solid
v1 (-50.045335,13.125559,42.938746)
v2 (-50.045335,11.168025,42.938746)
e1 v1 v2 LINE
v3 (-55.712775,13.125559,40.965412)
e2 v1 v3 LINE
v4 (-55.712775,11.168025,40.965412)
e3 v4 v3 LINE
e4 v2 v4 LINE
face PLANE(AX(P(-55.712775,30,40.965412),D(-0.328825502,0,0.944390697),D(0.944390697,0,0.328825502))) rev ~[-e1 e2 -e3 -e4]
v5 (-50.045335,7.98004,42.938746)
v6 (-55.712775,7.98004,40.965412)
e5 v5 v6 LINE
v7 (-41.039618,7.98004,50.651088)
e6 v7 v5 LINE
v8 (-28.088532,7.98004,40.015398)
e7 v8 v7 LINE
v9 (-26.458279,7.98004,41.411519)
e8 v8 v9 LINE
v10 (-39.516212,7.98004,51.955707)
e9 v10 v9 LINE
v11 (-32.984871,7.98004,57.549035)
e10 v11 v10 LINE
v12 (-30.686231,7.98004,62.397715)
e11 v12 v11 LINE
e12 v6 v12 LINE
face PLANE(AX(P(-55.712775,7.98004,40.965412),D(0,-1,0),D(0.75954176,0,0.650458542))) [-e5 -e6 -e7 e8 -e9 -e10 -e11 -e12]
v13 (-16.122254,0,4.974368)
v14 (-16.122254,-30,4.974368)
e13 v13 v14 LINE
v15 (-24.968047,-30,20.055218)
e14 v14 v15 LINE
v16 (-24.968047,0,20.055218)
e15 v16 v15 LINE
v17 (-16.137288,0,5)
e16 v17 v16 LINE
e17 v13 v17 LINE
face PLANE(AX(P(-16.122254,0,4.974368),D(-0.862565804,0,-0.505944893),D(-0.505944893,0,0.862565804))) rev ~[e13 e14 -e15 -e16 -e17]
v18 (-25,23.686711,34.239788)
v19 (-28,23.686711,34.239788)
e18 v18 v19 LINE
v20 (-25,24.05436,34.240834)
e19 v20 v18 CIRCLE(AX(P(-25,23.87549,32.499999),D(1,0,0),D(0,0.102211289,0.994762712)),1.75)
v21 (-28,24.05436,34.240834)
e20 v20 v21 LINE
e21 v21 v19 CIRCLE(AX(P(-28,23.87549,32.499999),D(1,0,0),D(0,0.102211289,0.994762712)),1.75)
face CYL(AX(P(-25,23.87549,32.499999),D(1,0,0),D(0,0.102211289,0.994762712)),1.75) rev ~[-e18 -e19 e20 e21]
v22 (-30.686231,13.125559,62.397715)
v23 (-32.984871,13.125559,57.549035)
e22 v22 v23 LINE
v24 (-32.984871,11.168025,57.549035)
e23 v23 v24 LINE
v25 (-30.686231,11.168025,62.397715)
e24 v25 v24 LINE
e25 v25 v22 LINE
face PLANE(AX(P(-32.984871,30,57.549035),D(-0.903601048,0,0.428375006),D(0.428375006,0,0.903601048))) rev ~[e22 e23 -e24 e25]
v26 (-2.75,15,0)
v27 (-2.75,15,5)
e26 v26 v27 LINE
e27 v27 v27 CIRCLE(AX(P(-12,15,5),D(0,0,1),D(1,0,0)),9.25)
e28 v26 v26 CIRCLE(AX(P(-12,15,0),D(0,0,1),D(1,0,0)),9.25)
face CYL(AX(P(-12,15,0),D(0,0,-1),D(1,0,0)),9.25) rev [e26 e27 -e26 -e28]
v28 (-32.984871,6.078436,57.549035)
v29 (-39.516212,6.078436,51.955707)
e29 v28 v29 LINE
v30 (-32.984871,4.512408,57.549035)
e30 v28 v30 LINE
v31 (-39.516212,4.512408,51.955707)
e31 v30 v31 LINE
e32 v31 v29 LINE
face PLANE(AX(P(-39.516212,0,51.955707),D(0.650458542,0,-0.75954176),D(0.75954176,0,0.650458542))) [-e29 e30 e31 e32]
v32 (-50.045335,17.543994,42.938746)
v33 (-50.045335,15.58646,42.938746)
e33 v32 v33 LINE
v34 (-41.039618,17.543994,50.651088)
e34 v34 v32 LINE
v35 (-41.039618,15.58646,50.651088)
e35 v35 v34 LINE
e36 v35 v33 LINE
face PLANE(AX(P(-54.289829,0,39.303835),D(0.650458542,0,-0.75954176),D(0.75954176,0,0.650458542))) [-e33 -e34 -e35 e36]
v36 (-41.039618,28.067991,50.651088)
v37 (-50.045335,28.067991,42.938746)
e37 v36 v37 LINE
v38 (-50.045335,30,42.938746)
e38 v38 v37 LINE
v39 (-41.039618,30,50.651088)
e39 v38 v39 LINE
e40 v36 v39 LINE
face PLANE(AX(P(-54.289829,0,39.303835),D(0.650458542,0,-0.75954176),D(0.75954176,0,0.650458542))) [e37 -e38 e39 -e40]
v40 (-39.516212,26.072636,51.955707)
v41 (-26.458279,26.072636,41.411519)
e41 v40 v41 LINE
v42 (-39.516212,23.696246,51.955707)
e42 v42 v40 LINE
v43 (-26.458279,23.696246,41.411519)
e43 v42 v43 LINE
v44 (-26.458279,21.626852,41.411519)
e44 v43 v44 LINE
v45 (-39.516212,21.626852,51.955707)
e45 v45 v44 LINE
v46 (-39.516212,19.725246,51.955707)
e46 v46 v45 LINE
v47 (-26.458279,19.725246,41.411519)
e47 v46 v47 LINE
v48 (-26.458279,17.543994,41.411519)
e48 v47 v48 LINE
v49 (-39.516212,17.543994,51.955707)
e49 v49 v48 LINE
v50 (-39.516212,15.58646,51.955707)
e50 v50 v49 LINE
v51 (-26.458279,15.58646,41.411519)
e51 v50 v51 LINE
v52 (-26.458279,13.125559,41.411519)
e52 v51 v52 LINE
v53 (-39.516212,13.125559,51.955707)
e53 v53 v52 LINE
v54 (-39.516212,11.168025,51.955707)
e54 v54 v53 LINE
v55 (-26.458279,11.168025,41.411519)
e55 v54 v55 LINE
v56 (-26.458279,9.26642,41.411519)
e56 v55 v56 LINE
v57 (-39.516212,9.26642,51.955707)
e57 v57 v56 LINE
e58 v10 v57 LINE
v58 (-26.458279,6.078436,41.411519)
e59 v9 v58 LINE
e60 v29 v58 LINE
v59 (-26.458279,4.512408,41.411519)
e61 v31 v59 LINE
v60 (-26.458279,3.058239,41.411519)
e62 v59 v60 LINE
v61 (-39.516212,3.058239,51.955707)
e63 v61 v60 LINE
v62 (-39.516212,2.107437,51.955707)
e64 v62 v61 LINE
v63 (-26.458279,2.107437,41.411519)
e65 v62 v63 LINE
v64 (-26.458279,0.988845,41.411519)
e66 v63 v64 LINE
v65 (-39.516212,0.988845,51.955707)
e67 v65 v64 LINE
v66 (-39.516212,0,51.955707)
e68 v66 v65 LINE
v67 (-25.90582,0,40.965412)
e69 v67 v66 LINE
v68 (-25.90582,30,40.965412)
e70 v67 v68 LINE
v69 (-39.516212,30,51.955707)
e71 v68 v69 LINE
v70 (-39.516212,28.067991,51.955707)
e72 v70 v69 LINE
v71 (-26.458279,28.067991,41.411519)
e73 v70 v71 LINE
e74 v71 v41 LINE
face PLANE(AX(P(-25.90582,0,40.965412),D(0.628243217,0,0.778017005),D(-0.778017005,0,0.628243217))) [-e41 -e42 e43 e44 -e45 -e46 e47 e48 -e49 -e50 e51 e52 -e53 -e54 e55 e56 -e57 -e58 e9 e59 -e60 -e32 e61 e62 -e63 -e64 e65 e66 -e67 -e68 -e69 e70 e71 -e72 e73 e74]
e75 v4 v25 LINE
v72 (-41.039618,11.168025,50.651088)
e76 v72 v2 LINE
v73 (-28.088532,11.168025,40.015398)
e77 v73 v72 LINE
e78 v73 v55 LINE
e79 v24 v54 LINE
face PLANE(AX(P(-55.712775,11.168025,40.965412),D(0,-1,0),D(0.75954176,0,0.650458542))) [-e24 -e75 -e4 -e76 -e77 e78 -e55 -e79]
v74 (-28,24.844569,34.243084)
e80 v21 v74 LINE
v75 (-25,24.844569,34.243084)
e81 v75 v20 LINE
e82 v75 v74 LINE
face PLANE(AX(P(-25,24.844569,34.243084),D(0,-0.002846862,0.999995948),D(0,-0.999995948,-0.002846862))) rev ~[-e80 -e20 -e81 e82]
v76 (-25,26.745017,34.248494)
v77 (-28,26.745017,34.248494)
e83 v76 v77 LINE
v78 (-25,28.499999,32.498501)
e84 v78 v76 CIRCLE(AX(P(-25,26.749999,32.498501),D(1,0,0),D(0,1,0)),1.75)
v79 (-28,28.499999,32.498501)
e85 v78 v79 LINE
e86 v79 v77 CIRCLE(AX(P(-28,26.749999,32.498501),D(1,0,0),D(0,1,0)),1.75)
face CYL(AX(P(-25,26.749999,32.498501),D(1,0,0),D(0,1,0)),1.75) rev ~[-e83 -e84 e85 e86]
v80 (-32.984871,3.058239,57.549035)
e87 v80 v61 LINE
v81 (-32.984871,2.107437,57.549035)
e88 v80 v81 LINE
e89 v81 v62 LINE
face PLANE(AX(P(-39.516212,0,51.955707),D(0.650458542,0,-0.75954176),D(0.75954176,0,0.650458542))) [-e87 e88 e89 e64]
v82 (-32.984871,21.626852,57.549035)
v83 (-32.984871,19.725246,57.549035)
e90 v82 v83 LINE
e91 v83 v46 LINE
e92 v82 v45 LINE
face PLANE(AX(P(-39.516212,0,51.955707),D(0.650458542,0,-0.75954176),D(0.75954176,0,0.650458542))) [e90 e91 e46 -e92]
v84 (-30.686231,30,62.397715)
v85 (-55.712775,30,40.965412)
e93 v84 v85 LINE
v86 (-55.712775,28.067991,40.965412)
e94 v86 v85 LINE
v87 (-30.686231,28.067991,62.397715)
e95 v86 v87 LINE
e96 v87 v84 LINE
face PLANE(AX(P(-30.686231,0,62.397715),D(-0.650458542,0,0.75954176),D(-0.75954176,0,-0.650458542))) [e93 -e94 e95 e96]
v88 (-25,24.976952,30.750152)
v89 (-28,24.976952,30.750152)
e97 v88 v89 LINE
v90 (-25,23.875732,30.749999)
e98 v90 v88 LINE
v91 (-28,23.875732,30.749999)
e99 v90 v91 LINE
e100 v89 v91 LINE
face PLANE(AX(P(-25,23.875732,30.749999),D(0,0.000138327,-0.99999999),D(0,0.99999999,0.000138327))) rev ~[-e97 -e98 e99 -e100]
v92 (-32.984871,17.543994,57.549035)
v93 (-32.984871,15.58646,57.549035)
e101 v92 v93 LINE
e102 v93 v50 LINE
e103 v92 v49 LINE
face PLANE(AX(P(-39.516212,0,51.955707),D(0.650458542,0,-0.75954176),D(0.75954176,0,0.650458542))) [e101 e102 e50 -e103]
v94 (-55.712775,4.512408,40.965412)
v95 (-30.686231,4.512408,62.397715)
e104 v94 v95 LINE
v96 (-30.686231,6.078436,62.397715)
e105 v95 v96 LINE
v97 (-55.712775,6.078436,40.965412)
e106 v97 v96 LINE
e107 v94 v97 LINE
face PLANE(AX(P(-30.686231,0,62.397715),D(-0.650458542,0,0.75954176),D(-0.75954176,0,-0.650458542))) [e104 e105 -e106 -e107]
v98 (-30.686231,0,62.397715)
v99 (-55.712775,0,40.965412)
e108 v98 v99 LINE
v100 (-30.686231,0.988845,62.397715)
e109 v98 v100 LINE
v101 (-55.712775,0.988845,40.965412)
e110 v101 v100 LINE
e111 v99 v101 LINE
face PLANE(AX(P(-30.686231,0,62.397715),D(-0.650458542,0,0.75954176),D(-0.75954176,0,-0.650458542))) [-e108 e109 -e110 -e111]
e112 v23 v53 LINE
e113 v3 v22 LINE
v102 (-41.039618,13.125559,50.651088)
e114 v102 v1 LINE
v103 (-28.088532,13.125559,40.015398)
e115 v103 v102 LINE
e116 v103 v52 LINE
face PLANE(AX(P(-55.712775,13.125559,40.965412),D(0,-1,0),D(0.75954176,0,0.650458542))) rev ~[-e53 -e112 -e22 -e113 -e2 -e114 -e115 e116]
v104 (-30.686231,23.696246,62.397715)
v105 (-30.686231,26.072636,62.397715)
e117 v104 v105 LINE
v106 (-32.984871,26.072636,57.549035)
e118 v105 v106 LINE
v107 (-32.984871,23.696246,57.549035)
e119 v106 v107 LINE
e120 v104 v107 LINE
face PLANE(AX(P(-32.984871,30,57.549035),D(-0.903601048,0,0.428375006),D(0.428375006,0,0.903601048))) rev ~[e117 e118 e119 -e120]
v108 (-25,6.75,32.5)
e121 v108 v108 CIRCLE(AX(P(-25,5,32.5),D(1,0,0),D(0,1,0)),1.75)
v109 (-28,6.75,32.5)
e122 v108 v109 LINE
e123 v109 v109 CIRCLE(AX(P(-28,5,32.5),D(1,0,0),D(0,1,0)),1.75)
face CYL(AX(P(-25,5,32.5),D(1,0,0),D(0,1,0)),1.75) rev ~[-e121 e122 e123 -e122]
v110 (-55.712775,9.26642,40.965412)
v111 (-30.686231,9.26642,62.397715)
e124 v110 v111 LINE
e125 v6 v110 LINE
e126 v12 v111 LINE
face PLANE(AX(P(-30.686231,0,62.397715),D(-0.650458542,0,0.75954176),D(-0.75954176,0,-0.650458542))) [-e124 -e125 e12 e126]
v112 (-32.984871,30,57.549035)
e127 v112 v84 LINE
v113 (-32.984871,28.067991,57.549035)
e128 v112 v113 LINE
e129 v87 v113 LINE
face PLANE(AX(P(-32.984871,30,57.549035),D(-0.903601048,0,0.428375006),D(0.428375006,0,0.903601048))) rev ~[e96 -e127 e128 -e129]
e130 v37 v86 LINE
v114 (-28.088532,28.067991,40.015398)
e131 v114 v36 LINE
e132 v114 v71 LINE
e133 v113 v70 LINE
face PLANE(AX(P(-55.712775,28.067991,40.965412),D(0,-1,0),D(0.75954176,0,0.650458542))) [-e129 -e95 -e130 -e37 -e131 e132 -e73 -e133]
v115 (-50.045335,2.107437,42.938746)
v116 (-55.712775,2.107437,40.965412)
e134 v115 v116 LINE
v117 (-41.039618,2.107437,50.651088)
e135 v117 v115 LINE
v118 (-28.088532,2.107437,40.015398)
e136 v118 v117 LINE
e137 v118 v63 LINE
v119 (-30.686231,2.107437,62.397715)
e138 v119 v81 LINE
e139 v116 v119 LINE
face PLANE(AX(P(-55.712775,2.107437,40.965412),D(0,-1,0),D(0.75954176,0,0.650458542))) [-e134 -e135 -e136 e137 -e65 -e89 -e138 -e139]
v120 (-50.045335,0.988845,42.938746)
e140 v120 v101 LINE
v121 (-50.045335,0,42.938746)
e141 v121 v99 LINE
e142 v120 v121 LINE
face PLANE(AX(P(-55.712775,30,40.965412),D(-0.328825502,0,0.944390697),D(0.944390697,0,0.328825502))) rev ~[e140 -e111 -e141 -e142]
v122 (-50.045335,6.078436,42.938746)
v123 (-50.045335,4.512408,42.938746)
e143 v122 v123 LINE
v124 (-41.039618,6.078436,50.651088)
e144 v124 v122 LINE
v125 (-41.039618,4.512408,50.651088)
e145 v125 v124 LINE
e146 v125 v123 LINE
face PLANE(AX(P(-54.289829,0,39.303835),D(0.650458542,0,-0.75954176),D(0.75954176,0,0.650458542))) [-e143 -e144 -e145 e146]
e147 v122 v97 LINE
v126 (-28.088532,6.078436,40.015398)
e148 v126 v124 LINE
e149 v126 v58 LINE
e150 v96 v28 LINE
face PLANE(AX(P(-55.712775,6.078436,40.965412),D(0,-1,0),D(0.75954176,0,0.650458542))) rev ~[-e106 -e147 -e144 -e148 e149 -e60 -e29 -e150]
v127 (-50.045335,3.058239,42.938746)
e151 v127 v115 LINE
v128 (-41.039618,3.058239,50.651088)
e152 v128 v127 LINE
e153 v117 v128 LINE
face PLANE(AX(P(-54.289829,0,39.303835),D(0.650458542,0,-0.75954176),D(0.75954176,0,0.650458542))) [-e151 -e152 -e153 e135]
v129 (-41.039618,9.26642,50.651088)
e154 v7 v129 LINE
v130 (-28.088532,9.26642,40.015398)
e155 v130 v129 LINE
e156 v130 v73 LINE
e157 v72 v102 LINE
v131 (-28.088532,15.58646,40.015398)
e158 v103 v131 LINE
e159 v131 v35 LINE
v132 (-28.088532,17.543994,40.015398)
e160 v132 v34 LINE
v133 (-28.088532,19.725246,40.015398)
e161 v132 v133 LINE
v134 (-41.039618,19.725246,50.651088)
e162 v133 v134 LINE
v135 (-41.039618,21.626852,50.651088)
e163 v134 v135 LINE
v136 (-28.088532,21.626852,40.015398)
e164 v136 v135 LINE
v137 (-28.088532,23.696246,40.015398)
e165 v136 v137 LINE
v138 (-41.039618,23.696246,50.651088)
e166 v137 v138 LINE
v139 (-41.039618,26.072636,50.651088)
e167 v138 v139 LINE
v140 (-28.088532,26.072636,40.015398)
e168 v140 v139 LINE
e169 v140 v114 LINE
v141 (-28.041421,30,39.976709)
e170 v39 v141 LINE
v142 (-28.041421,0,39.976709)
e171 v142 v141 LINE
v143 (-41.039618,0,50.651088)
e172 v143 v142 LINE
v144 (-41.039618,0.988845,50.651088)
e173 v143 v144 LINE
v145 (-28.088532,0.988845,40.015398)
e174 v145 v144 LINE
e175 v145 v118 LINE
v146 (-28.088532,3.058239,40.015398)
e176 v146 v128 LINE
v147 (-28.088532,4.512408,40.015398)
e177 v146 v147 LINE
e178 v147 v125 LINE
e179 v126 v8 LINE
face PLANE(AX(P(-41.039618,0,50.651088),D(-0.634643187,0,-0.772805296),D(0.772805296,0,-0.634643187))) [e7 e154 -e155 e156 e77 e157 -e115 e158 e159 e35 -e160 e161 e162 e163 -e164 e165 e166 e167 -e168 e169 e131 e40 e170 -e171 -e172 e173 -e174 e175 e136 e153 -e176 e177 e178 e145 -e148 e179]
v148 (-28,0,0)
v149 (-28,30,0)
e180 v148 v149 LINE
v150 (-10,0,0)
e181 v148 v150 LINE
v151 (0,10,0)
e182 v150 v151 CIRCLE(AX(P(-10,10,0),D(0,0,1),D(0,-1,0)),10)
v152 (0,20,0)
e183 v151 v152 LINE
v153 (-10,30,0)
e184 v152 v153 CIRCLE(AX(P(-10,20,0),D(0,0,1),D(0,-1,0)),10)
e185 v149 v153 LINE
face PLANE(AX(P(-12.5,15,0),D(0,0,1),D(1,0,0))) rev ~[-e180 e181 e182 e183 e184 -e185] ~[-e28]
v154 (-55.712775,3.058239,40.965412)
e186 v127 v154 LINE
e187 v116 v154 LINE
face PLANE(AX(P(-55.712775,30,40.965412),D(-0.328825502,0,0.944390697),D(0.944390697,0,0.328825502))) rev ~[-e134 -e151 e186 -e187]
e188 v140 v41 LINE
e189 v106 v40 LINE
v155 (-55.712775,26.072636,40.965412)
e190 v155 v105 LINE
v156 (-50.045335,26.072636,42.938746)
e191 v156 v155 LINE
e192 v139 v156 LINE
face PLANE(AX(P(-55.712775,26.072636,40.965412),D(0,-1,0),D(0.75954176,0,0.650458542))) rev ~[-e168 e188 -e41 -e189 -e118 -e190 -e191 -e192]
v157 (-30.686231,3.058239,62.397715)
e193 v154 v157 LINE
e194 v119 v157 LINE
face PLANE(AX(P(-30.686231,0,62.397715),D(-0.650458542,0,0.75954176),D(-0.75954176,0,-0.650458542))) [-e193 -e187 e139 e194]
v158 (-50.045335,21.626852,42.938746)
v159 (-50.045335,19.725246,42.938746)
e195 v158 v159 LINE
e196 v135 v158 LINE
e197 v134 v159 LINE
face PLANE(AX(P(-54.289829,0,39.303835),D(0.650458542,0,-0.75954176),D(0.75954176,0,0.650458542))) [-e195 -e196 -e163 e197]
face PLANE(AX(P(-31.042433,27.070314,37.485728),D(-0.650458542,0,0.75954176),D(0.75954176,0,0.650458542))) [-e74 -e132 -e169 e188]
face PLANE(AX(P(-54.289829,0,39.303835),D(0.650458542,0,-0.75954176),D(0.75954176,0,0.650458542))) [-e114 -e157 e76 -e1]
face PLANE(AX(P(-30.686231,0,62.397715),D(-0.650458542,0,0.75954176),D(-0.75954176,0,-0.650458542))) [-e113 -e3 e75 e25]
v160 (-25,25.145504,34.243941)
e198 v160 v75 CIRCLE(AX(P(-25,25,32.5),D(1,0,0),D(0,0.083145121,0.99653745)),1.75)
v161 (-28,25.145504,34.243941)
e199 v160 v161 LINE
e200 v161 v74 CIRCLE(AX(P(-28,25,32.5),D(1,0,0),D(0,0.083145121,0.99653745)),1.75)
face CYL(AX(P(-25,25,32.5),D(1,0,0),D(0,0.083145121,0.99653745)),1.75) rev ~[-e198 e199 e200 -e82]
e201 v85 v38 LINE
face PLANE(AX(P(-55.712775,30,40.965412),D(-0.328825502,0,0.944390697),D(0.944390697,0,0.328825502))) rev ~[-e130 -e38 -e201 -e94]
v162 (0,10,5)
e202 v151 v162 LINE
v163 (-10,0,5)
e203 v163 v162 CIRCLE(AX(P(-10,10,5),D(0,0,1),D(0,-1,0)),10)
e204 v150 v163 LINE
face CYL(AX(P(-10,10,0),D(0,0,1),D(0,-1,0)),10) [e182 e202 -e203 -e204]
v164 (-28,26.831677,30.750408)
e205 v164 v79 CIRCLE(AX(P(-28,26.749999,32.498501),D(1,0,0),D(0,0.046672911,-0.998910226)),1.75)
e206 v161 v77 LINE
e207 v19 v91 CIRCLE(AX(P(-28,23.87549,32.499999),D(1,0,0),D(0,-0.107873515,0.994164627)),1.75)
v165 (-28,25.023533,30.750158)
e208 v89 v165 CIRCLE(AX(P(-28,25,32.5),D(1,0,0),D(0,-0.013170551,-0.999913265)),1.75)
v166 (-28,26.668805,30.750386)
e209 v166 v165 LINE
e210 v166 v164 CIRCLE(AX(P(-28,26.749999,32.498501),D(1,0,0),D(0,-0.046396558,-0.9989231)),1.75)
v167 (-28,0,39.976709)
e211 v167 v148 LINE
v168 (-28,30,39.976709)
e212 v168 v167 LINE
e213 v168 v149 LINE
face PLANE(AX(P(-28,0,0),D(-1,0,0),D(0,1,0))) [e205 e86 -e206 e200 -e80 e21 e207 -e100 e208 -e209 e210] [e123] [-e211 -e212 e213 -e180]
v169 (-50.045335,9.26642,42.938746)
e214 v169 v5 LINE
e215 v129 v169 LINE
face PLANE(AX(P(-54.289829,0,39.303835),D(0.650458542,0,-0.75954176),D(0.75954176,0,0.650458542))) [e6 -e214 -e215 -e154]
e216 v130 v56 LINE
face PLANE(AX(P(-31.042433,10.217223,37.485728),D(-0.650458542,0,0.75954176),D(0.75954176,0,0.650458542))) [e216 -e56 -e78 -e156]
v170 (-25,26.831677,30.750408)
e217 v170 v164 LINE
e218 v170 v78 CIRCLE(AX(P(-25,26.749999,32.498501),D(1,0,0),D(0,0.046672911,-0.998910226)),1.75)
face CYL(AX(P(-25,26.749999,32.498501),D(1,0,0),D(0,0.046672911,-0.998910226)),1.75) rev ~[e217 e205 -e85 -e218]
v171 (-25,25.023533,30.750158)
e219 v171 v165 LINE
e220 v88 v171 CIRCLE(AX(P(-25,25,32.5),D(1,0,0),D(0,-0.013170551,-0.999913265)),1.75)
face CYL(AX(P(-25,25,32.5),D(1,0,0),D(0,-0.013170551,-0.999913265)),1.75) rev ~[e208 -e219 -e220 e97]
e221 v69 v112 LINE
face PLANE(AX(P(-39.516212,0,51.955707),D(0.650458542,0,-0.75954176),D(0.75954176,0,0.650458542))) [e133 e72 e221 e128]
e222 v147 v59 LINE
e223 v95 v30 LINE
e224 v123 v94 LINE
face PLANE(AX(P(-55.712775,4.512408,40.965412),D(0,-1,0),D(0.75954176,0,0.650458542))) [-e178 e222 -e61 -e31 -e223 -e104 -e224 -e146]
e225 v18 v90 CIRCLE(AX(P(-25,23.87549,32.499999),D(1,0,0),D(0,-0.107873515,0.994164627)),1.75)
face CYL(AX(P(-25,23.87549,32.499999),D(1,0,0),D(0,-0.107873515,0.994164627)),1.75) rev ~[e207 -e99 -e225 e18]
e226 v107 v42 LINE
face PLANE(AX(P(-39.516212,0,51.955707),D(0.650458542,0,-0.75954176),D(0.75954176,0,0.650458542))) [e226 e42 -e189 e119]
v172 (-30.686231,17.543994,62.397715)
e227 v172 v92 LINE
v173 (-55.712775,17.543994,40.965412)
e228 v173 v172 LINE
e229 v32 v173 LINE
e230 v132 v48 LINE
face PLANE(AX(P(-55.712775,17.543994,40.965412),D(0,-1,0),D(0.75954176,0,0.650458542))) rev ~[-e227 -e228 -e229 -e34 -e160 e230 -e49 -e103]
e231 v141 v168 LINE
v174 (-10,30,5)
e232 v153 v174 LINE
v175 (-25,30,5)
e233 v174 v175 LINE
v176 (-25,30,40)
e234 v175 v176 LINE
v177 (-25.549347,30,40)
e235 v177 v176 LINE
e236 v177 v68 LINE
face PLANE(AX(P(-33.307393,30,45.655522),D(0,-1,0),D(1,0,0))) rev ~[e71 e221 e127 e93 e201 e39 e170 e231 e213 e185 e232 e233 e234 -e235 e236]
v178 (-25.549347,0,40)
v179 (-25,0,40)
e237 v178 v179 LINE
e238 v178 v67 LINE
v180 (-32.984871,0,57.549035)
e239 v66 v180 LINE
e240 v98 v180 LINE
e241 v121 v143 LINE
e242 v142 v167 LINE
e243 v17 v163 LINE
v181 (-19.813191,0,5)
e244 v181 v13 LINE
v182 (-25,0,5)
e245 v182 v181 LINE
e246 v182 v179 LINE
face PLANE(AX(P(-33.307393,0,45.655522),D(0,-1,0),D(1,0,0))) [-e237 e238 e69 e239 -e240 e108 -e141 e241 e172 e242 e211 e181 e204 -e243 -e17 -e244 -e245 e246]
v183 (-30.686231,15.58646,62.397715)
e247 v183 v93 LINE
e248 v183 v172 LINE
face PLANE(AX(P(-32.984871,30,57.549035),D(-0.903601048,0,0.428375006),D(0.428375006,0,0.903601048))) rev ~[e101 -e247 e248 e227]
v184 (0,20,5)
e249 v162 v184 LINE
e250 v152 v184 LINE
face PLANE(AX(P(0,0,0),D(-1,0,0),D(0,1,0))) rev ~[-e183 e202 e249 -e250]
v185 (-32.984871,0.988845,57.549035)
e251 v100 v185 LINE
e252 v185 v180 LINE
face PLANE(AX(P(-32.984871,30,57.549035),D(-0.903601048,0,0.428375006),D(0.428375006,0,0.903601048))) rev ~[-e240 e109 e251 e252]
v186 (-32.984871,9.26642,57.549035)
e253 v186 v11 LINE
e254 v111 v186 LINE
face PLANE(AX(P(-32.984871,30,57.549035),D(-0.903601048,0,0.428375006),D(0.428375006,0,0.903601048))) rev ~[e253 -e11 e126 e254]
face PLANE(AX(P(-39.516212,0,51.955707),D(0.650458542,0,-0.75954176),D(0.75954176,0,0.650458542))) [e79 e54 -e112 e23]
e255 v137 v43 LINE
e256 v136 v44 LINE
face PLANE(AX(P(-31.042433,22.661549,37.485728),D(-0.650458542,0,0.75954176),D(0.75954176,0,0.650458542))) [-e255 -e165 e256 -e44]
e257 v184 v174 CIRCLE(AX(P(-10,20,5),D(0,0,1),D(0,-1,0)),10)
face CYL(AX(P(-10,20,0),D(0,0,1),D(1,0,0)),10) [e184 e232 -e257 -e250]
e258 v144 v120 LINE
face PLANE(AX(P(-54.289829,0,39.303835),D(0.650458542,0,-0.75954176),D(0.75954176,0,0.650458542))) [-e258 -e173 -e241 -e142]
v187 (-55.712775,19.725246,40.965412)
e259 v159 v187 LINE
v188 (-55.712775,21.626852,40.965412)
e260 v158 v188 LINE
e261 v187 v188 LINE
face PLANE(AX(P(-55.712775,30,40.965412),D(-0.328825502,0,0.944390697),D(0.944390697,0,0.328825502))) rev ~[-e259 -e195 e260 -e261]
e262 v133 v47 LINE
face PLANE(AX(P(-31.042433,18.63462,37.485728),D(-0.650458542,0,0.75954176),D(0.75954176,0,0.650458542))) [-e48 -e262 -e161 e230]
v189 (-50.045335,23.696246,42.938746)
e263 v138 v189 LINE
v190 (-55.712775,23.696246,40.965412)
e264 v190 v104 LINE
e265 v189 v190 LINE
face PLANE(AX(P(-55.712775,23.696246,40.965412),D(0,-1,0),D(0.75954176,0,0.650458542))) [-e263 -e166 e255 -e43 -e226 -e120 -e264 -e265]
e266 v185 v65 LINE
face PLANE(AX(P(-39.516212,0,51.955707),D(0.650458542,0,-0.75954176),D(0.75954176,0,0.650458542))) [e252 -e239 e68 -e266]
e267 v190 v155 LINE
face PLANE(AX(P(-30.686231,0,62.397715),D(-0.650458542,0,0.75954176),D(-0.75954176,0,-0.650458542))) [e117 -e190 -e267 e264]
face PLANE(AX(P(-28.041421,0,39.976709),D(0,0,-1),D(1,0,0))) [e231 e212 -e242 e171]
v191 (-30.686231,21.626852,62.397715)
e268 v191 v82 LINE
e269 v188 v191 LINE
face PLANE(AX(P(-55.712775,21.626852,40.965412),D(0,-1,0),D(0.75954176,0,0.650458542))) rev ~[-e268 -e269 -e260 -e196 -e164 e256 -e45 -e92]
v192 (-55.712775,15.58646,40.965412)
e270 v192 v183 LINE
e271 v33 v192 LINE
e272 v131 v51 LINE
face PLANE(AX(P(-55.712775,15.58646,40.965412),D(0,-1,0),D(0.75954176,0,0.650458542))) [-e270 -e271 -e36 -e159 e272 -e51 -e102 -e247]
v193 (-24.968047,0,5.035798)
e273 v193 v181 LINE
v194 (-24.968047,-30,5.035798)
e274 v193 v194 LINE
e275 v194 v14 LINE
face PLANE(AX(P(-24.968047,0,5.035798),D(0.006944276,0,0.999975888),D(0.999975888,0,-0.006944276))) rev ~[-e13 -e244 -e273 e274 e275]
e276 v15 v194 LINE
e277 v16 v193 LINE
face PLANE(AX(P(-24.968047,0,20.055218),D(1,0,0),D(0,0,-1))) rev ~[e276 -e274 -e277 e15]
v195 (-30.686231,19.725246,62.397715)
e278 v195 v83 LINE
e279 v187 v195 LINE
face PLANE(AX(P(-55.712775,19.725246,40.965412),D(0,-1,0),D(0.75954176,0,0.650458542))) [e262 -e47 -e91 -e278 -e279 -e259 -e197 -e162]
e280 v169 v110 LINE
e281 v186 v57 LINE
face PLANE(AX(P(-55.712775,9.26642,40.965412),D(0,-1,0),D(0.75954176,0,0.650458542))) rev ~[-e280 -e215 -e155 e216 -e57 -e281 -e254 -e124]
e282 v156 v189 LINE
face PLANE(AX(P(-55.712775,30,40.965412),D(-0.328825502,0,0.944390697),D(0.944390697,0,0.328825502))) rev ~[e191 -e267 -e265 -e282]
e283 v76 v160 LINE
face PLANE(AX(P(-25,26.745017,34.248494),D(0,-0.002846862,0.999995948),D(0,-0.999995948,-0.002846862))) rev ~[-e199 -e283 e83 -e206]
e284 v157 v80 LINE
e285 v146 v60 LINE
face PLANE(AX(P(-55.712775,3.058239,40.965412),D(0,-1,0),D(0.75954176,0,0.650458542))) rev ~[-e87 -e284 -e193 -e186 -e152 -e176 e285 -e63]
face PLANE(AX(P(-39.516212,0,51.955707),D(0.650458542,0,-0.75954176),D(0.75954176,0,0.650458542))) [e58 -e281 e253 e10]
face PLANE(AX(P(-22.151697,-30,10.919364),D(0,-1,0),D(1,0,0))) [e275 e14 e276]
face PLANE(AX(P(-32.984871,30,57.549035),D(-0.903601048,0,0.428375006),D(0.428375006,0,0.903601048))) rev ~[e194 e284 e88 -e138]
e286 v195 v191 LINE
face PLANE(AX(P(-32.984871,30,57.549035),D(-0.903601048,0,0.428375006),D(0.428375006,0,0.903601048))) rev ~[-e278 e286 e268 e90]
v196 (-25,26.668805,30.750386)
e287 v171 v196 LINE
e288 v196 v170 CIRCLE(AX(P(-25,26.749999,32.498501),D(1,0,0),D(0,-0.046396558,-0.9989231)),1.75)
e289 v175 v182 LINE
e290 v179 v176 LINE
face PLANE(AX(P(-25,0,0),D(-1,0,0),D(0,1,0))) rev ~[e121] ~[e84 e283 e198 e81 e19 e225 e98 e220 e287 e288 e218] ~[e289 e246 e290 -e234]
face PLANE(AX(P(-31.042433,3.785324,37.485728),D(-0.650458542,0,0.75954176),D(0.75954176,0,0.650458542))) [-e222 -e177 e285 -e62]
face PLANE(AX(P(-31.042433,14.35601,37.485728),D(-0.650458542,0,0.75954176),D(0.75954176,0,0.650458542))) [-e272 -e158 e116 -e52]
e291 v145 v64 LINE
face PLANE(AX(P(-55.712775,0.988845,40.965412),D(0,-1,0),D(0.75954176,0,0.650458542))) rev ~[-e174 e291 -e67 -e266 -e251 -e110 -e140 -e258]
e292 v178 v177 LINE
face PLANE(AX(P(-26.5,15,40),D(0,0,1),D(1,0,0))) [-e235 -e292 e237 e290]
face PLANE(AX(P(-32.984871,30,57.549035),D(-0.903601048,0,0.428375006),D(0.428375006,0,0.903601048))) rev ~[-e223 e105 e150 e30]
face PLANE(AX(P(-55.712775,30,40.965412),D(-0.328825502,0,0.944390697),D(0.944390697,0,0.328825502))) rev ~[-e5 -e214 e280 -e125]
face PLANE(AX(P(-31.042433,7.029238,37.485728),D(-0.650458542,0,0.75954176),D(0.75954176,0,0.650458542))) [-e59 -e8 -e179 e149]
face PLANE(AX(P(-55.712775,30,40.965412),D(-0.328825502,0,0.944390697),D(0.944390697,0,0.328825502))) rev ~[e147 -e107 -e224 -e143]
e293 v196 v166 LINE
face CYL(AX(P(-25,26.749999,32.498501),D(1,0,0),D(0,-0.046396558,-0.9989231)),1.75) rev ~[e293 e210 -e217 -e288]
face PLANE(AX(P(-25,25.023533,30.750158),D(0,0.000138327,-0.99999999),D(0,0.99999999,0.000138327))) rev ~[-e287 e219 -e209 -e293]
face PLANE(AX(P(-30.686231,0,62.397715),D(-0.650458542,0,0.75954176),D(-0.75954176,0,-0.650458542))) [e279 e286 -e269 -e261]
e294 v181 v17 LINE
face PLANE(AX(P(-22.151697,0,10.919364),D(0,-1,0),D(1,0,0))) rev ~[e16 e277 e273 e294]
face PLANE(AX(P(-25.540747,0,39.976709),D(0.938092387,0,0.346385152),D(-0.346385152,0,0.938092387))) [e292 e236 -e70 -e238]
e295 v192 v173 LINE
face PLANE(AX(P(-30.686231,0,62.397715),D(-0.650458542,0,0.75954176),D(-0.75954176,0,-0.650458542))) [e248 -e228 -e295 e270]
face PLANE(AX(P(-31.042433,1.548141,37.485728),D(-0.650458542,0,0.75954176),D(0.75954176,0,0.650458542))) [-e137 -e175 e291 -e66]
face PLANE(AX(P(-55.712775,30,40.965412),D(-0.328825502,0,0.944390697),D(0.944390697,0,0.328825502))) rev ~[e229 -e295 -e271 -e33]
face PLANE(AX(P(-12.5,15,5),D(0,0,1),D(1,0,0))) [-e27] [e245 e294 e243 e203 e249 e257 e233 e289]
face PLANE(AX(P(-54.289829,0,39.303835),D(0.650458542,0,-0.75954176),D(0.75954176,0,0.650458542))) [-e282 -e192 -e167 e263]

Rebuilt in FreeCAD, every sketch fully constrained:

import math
import FreeCAD as App
import Part
import Sketcher
from FreeCAD import Vector
Q = App.Units.Quantity


def edges_at(feature, points):
    """Names of the edges that pass closest to the given points."""
    edges = feature.Shape.Edges
    near = lambda p: min(range(len(edges)), key=lambda i: edges[i].distToShape(Part.Vertex(*p))[0])
    return sorted({f"Edge{near(p) + 1}" for p in points})

doc = App.newDocument("Part")
body = doc.addObject("PartDesign::Body", "Body")

sketch1 = body.newObject("Sketcher::SketchObject", "Sketch")
sketch1.AttachmentSupport = (doc.getObject("XY_Plane"), [""])
sketch1.MapMode = "FlatFace"
sketch1.addGeometry([
    Part.LineSegment(Vector(0, 0, 0), Vector(0, 30, 0)),
    Part.LineSegment(Vector(0, 30, 0), Vector(-28, 30, 0)),
    Part.LineSegment(Vector(-28, 30, 0), Vector(-28, 0, 0)),
    Part.LineSegment(Vector(-28, 0, 0), Vector(0, 0, 0)),
    Part.Circle(Vector(-12, 15, 0), Vector(0, 0, 1), 9),
], False)
sketch1.addConstraint([
    Sketcher.Constraint("Coincident", 0, 2, 1, 1),
    Sketcher.Constraint("Coincident", 1, 2, 2, 1),
    Sketcher.Constraint("Coincident", 2, 2, 3, 1),
    Sketcher.Constraint("Coincident", 3, 2, 0, 1),
    Sketcher.Constraint("Vertical", 0),
    Sketcher.Constraint("Horizontal", 1),
    Sketcher.Constraint("Vertical", 2),
    Sketcher.Constraint("Horizontal", 3),
    Sketcher.Constraint("Coincident", 3, 2, -1, 1),
    Sketcher.Constraint("Diameter", 4, Q("18.5 mm")),
    Sketcher.Constraint("DistanceX", 1, 2, 1, 1, Q("28 mm")),
    Sketcher.Constraint("DistanceY", 0, 1, 0, 2, Q("30 mm")),
    Sketcher.Constraint("DistanceX", 4, 3, -1, 1, Q("12 mm")),
    Sketcher.Constraint("DistanceY", -1, 1, 4, 3, Q("15 mm")),
])
pad1 = body.newObject("PartDesign::Pad", "Pad")
pad1.Profile = sketch1
pad1.Length = 5

sketch2 = body.newObject("Sketcher::SketchObject", "Sketch001")
sketch2.AttachmentSupport = (doc.getObject("XY_Plane"), [""])
sketch2.MapMode = "FlatFace"
sketch2.addGeometry([
    Part.LineSegment(Vector(-28, 30, 0), Vector(-28, 0, 0)),
    Part.LineSegment(Vector(-28, 0, 0), Vector(-25, 0, 0)),
    Part.LineSegment(Vector(-25, 0, 0), Vector(-25, 30, 0)),
    Part.LineSegment(Vector(-25, 30, 0), Vector(-28, 30, 0)),
], False)
sketch2.addConstraint([
    Sketcher.Constraint("Coincident", 0, 2, 1, 1),
    Sketcher.Constraint("Coincident", 1, 2, 2, 1),
    Sketcher.Constraint("Coincident", 2, 2, 3, 1),
    Sketcher.Constraint("Coincident", 3, 2, 0, 1),
    Sketcher.Constraint("Vertical", 0),
    Sketcher.Constraint("Horizontal", 1),
    Sketcher.Constraint("Vertical", 2),
    Sketcher.Constraint("Horizontal", 3),
    Sketcher.Constraint("PointOnObject", 0, 2, -1),
    Sketcher.Constraint("DistanceX", 1, 1, 1, 2, Q("3 mm")),
    Sketcher.Constraint("DistanceY", 0, 2, 0, 1, Q("30 mm")),
    Sketcher.Constraint("DistanceX", 0, 2, -1, 1, Q("28 mm")),
])
pad2 = body.newObject("PartDesign::Pad", "Pad001")
pad2.Profile = sketch2
pad2.Length = 40
doc.recompute()

fillet = body.newObject("PartDesign::Fillet", "Fillet")
fillet.Base = (pad2, edges_at(pad2, [(0, 0, 2.5), (0, 30, 2.5)]))
fillet.Radius = 10

sketch3 = body.newObject("Sketcher::SketchObject", "Sketch002")
sketch3.AttachmentSupport = (doc.getObject("YZ_Plane"), [""])
sketch3.MapMode = "FlatFace"
sketch3.AttachmentOffset = App.Placement(Vector(0, 0, -25), App.Rotation())
sketch3.addGeometry([
    Part.Circle(Vector(5, 32.5, 0), Vector(0, 0, 1), 1.75),
    Part.ArcOfCircle(Part.Circle(Vector(23.875, 32.5, 0), Vector(0, 0, 1), 1.75), math.radians(96), math.radians(270)),
    Part.LineSegment(Vector(23.876, 30.75, 0), Vector(24.977, 30.75, 0)),
    Part.ArcOfCircle(Part.Circle(Vector(25, 32.5, 0), Vector(0, 0, 1), 1.75), math.radians(-90.75), math.radians(-89.23)),
    Part.LineSegment(Vector(25.024, 30.75, 0), Vector(26.669, 30.75, 0)),
    Part.ArcOfCircle(Part.Circle(Vector(26.75, 32.499, 0), Vector(0, 0, 1), 1.75), math.radians(-92.66), math.radians(-87.32)),
    Part.ArcOfCircle(Part.Circle(Vector(26.75, 32.499, 0), Vector(0, 0, 1), 1.75), math.radians(-87), math.radians(0)),
    Part.ArcOfCircle(Part.Circle(Vector(26.75, 32.499, 0), Vector(0, 0, 1), 1.75), math.radians(0), math.radians(90)),
    Part.LineSegment(Vector(26.745, 34.248, 0), Vector(25.146, 34.244, 0)),
    Part.ArcOfCircle(Part.Circle(Vector(25, 32.5, 0), Vector(0, 0, 1), 1.75), math.radians(85.23), math.radians(95.1)),
    Part.LineSegment(Vector(24.845, 34.243, 0), Vector(24.054, 34.241, 0)),
    Part.ArcOfCircle(Part.Circle(Vector(23.875, 32.5, 0), Vector(0, 0, 1), 1.75), math.radians(84.13), math.radians(96.19)),
], False)
sketch3.addConstraint([
    Sketcher.Constraint("Tangent", 1, 2, 2, 1),
    Sketcher.Constraint("Coincident", 2, 2, 3, 1),
    Sketcher.Constraint("Coincident", 3, 2, 4, 1),
    Sketcher.Constraint("Coincident", 4, 2, 5, 1),
    Sketcher.Constraint("Tangent", 5, 2, 6, 1),
    Sketcher.Constraint("Tangent", 6, 2, 7, 1),
    Sketcher.Constraint("Tangent", 7, 2, 8, 1),
    Sketcher.Constraint("Coincident", 8, 2, 9, 1),
    Sketcher.Constraint("Coincident", 9, 2, 10, 1),
    Sketcher.Constraint("Coincident", 10, 2, 11, 1),
    Sketcher.Constraint("Tangent", 11, 2, 1, 1),
    Sketcher.Constraint("Coincident", 7, 3, 5, 3),
    Sketcher.Constraint("Coincident", 9, 3, 3, 3),
    Sketcher.Constraint("Equal", 0, 1),
    Sketcher.Constraint("Equal", 1, 3),
    Sketcher.Constraint("Equal", 3, 5),
    Sketcher.Constraint("Equal", 7, 9),
    Sketcher.Constraint("Equal", 9, 11),
    Sketcher.Constraint("Parallel", 2, 4),
    Sketcher.Constraint("Parallel", 8, 10),
    Sketcher.Constraint("Horizontal", 0, 3, 1, 3),
    Sketcher.Constraint("Horizontal", 1, 3, 3, 3),
    Sketcher.Constraint("Horizontal", 7, 3, 6, 2),
    Sketcher.Constraint("Diameter", 0, Q("3.5 mm")),
    Sketcher.Constraint("DistanceX", -1, 1, 0, 3, Q("5 mm")),
    Sketcher.Constraint("DistanceX", -1, 1, 3, 3, Q("25 mm")),
    Sketcher.Constraint("DistanceY", -1, 1, 0, 3, Q("32.5 mm")),
    Sketcher.Constraint("DistanceX", -1, 1, 6, 2, Q("28.499999 mm")),
    Sketcher.Constraint("DistanceY", -1, 1, 5, 3, Q("32.498501 mm")),
    Sketcher.Constraint("DistanceX", 1, 2, 3, 2, Q("1.147801 mm")),
    Sketcher.Constraint("Distance", 2, Q("1.10122 mm")),
    Sketcher.Constraint("Distance", 8, Q("1.59952 mm")),
    Sketcher.Constraint("DistanceX", -1, 1, 1, 3, Q("23.87549 mm")),
    Sketcher.Constraint("DistanceY", -1, 1, 5, 2, Q("30.750408 mm")),
    Sketcher.Constraint("DistanceX", -1, 1, 9, 2, Q("24.844569 mm")),
    Sketcher.Constraint("DistanceX", -1, 1, 11, 2, Q("23.686711 mm")),
])
pocket1 = body.newObject("PartDesign::Pocket", "Pocket")
pocket1.Profile = sketch3
pocket1.Type = "ThroughAll"

sketch4 = body.newObject("Sketcher::SketchObject", "Sketch003")
sketch4.AttachmentSupport = (doc.getObject("XZ_Plane"), [""])
sketch4.MapMode = "FlatFace"
sketch4.addGeometry([
    Part.LineSegment(Vector(-25.9, 41, 0), Vector(-39.5, 52, 0)),
    Part.LineSegment(Vector(-39.5, 52, 0), Vector(-29.5, 60.5, 0)),
    Part.LineSegment(Vector(-29.5, 60.5, 0), Vector(-30.7, 62.4, 0)),
    Part.LineSegment(Vector(-30.7, 62.4, 0), Vector(-55.7, 41, 0)),
    Part.LineSegment(Vector(-55.7, 41, 0), Vector(-54.3, 39.3, 0)),
    Part.LineSegment(Vector(-54.3, 39.3, 0), Vector(-41, 50.7, 0)),
    Part.LineSegment(Vector(-41, 50.7, 0), Vector(-28, 40, 0)),
    Part.LineSegment(Vector(-28, 40, 0), Vector(-25.5, 40, 0)),
    Part.LineSegment(Vector(-25.5, 40, 0), Vector(-25.9, 41, 0)),
], False)
sketch4.addConstraint([
    Sketcher.Constraint("Coincident", 0, 2, 1, 1),
    Sketcher.Constraint("Coincident", 1, 2, 2, 1),
    Sketcher.Constraint("Coincident", 2, 2, 3, 1),
    Sketcher.Constraint("Coincident", 3, 2, 4, 1),
    Sketcher.Constraint("Coincident", 4, 2, 5, 1),
    Sketcher.Constraint("Coincident", 5, 2, 6, 1),
    Sketcher.Constraint("Coincident", 6, 2, 7, 1),
    Sketcher.Constraint("Coincident", 7, 2, 8, 1),
    Sketcher.Constraint("Coincident", 8, 2, 0, 1),
    Sketcher.Constraint("Horizontal", 7),
    Sketcher.Constraint("Parallel", 1, 3),
    Sketcher.Constraint("Perpendicular", 3, 4),
    Sketcher.Constraint("Perpendicular", 4, 5),
    Sketcher.Constraint("Horizontal", 3, 2, 8, 2),
    Sketcher.Constraint("DistanceY", 6, 2, 0, 2, Q("11.978998 mm")),
    Sketcher.Constraint("DistanceY", 1, 2, 2, 2, Q("1.864098 mm")),
    Sketcher.Constraint("DistanceX", 6, 2, 8, 2, Q("2.135601 mm")),
    Sketcher.Constraint("DistanceX", 5, 2, 8, 2, Q("15.133798 mm")),
    Sketcher.Constraint("Distance", 1, Q("13.187481 mm")),
    Sketcher.Constraint("Distance", 2, Q("2.20965 mm")),
    Sketcher.Constraint("Distance", 3, Q("32.94953 mm")),
    Sketcher.Constraint("Distance", 8, Q("1.053951 mm")),
    Sketcher.Constraint("DistanceX", 7, 1, 7, 2, Q("2.500674 mm")),
    Sketcher.Constraint("DistanceX", 0, 2, -1, 1, Q("39.516212 mm")),
    Sketcher.Constraint("DistanceY", -1, 1, 3, 2, Q("40.965412 mm")),
    Sketcher.Constraint("DistanceX", 4, 2, -1, 1, Q("54.289829 mm")),
    Sketcher.Constraint("DistanceY", -1, 1, 5, 2, Q("50.651088 mm")),
])
pad3 = body.newObject("PartDesign::Pad", "Pad002")
pad3.Profile = sketch4
pad3.Length = 30
pad3.Reversed = True

sketch5 = body.newObject("Sketcher::SketchObject", "Sketch004")
sketch5.Placement = App.Placement(Vector(-43.810849, 0, 51.158017), App.Rotation(Vector(0.75954176, 0, 0.650458542), Vector(0, 1, 0), Vector(-0.650458542, 0, 0.75954176), "ZXY"))
sketch5.addGeometry([
    Part.LineSegment(Vector(-15.7, 28.1, 0), Vector(-15.7, 26.1, 0)),
    Part.LineSegment(Vector(-15.7, 26.1, 0), Vector(17.3, 26.1, 0)),
    Part.LineSegment(Vector(17.3, 26.1, 0), Vector(17.3, 28.1, 0)),
    Part.LineSegment(Vector(17.3, 28.1, 0), Vector(-15.7, 28.1, 0)),
    Part.LineSegment(Vector(-15.7, 23.7, 0), Vector(-15.7, 21.6, 0)),
    Part.LineSegment(Vector(-15.7, 21.6, 0), Vector(17.3, 21.6, 0)),
    Part.LineSegment(Vector(17.3, 21.6, 0), Vector(17.3, 23.7, 0)),
    Part.LineSegment(Vector(17.3, 23.7, 0), Vector(-15.7, 23.7, 0)),
    Part.LineSegment(Vector(-15.7, 19.7, 0), Vector(-15.7, 17.5, 0)),
    Part.LineSegment(Vector(-15.7, 17.5, 0), Vector(17.3, 17.5, 0)),
    Part.LineSegment(Vector(17.3, 17.5, 0), Vector(17.3, 19.7, 0)),
    Part.LineSegment(Vector(17.3, 19.7, 0), Vector(-15.7, 19.7, 0)),
    Part.LineSegment(Vector(-15.7, 15.6, 0), Vector(-15.7, 13.1, 0)),
    Part.LineSegment(Vector(-15.7, 13.1, 0), Vector(17.3, 13.1, 0)),
    Part.LineSegment(Vector(17.3, 13.1, 0), Vector(17.3, 15.6, 0)),
    Part.LineSegment(Vector(17.3, 15.6, 0), Vector(-15.7, 15.6, 0)),
    Part.LineSegment(Vector(-15.7, 11.2, 0), Vector(-15.7, 9.3, 0)),
    Part.LineSegment(Vector(-15.7, 9.3, 0), Vector(17.3, 9.3, 0)),
    Part.LineSegment(Vector(17.3, 9.3, 0), Vector(17.3, 11.2, 0)),
    Part.LineSegment(Vector(17.3, 11.2, 0), Vector(-15.7, 11.2, 0)),
    Part.LineSegment(Vector(-15.7, 8, 0), Vector(-15.7, 6.1, 0)),
    Part.LineSegment(Vector(-15.7, 6.1, 0), Vector(17.3, 6.1, 0)),
    Part.LineSegment(Vector(17.3, 6.1, 0), Vector(17.3, 8, 0)),
    Part.LineSegment(Vector(17.3, 8, 0), Vector(-15.7, 8, 0)),
    Part.LineSegment(Vector(-15.7, 4.5, 0), Vector(-15.7, 3.1, 0)),
    Part.LineSegment(Vector(-15.7, 3.1, 0), Vector(17.3, 3.1, 0)),
    Part.LineSegment(Vector(17.3, 3.1, 0), Vector(17.3, 4.5, 0)),
    Part.LineSegment(Vector(17.3, 4.5, 0), Vector(-15.7, 4.5, 0)),
    Part.LineSegment(Vector(-15.7, 2.1, 0), Vector(-15.7, 1, 0)),
    Part.LineSegment(Vector(-15.7, 1, 0), Vector(17.3, 1, 0)),
    Part.LineSegment(Vector(17.3, 1, 0), Vector(17.3, 2.1, 0)),
    Part.LineSegment(Vector(17.3, 2.1, 0), Vector(-15.7, 2.1, 0)),
], False)
sketch5.addConstraint([
    Sketcher.Constraint("Coincident", 0, 2, 1, 1),
    Sketcher.Constraint("Coincident", 1, 2, 2, 1),
    Sketcher.Constraint("Coincident", 2, 2, 3, 1),
    Sketcher.Constraint("Coincident", 3, 2, 0, 1),
    Sketcher.Constraint("Coincident", 4, 2, 5, 1),
    Sketcher.Constraint("Coincident", 5, 2, 6, 1),
    Sketcher.Constraint("Coincident", 6, 2, 7, 1),
    Sketcher.Constraint("Coincident", 7, 2, 4, 1),
    Sketcher.Constraint("Coincident", 8, 2, 9, 1),
    Sketcher.Constraint("Coincident", 9, 2, 10, 1),
    Sketcher.Constraint("Coincident", 10, 2, 11, 1),
    Sketcher.Constraint("Coincident", 11, 2, 8, 1),
    Sketcher.Constraint("Coincident", 12, 2, 13, 1),
    Sketcher.Constraint("Coincident", 13, 2, 14, 1),
    Sketcher.Constraint("Coincident", 14, 2, 15, 1),
    Sketcher.Constraint("Coincident", 15, 2, 12, 1),
    Sketcher.Constraint("Coincident", 16, 2, 17, 1),
    Sketcher.Constraint("Coincident", 17, 2, 18, 1),
    Sketcher.Constraint("Coincident", 18, 2, 19, 1),
    Sketcher.Constraint("Coincident", 19, 2, 16, 1),
    Sketcher.Constraint("Coincident", 20, 2, 21, 1),
    Sketcher.Constraint("Coincident", 21, 2, 22, 1),
    Sketcher.Constraint("Coincident", 22, 2, 23, 1),
    Sketcher.Constraint("Coincident", 23, 2, 20, 1),
    Sketcher.Constraint("Coincident", 24, 2, 25, 1),
    Sketcher.Constraint("Coincident", 25, 2, 26, 1),
    Sketcher.Constraint("Coincident", 26, 2, 27, 1),
    Sketcher.Constraint("Coincident", 27, 2, 24, 1),
    Sketcher.Constraint("Coincident", 28, 2, 29, 1),
    Sketcher.Constraint("Coincident", 29, 2, 30, 1),
    Sketcher.Constraint("Coincident", 30, 2, 31, 1),
    Sketcher.Constraint("Coincident", 31, 2, 28, 1),
    Sketcher.Constraint("Vertical", 0),
    Sketcher.Constraint("Horizontal", 1),
    Sketcher.Constraint("Vertical", 2),
    Sketcher.Constraint("Horizontal", 3),
    Sketcher.Constraint("Vertical", 4),
    Sketcher.Constraint("Horizontal", 5),
    Sketcher.Constraint("Vertical", 6),
    Sketcher.Constraint("Horizontal", 7),
    Sketcher.Constraint("Vertical", 8),
    Sketcher.Constraint("Horizontal", 9),
    Sketcher.Constraint("Vertical", 10),
    Sketcher.Constraint("Horizontal", 11),
    Sketcher.Constraint("Vertical", 12),
    Sketcher.Constraint("Horizontal", 13),
    Sketcher.Constraint("Vertical", 14),
    Sketcher.Constraint("Horizontal", 15),
    Sketcher.Constraint("Vertical", 16),
    Sketcher.Constraint("Horizontal", 17),
    Sketcher.Constraint("Vertical", 18),
    Sketcher.Constraint("Horizontal", 19),
    Sketcher.Constraint("Vertical", 20),
    Sketcher.Constraint("Horizontal", 21),
    Sketcher.Constraint("Vertical", 22),
    Sketcher.Constraint("Horizontal", 23),
    Sketcher.Constraint("Vertical", 24),
    Sketcher.Constraint("Horizontal", 25),
    Sketcher.Constraint("Vertical", 26),
    Sketcher.Constraint("Horizontal", 27),
    Sketcher.Constraint("Vertical", 28),
    Sketcher.Constraint("Horizontal", 29),
    Sketcher.Constraint("Vertical", 30),
    Sketcher.Constraint("Horizontal", 31),
    Sketcher.Constraint("Vertical", 3, 2, 4, 2),
    Sketcher.Constraint("Vertical", 2, 2, 5, 2),
    Sketcher.Constraint("Vertical", 7, 2, 8, 2),
    Sketcher.Constraint("Vertical", 6, 2, 9, 2),
    Sketcher.Constraint("Vertical", 11, 2, 12, 2),
    Sketcher.Constraint("Vertical", 10, 2, 13, 2),
    Sketcher.Constraint("Vertical", 15, 2, 16, 2),
    Sketcher.Constraint("Vertical", 14, 2, 17, 2),
    Sketcher.Constraint("Vertical", 19, 2, 20, 2),
    Sketcher.Constraint("Vertical", 18, 2, 21, 2),
    Sketcher.Constraint("Vertical", 23, 2, 24, 2),
    Sketcher.Constraint("Vertical", 22, 2, 25, 2),
    Sketcher.Constraint("Vertical", 27, 2, 28, 2),
    Sketcher.Constraint("Vertical", 26, 2, 29, 2),
    Sketcher.Constraint("Equal", 18, 20),
    Sketcher.Constraint("DistanceY", 12, 2, 12, 1, Q("2.460901 mm")),
    Sketcher.Constraint("DistanceY", 10, 2, 6, 2, Q("3.970999 mm")),
    Sketcher.Constraint("DistanceY", 30, 2, 21, 2, Q("3.970999 mm")),
    Sketcher.Constraint("DistanceX", 1, 1, 1, 2, Q("32.94953 mm")),
    Sketcher.Constraint("DistanceY", 24, 2, 24, 1, Q("1.454168 mm")),
    Sketcher.Constraint("DistanceY", 28, 2, 28, 1, Q("1.118591 mm")),
    Sketcher.Constraint("DistanceY", 24, 2, 23, 2, Q("4.921801 mm")),
    Sketcher.Constraint("DistanceY", 0, 2, 0, 1, Q("1.995355 mm")),
    Sketcher.Constraint("DistanceY", 4, 2, 4, 1, Q("2.069393 mm")),
    Sketcher.Constraint("DistanceY", 8, 2, 8, 1, Q("2.181252 mm")),
    Sketcher.Constraint("DistanceY", 16, 2, 16, 1, Q("1.901605 mm")),
    Sketcher.Constraint("DistanceY", -1, 1, 2, 2, Q("28.067991 mm")),
    Sketcher.Constraint("DistanceY", -1, 1, 12, 2, Q("13.125559 mm")),
    Sketcher.Constraint("DistanceY", -1, 1, 16, 2, Q("9.26642 mm")),
    Sketcher.Constraint("DistanceY", -1, 1, 22, 2, Q("7.98004 mm")),
    Sketcher.Constraint("DistanceY", 4, 2, 3, 2, Q("6.441139 mm")),
    Sketcher.Constraint("DistanceX", 0, 2, -1, 1, Q("15.669877 mm")),
])
pocket2 = body.newObject("PartDesign::Pocket", "Pocket001")
pocket2.Profile = sketch5
pocket2.Length = 18.69

sketch6 = body.newObject("Sketcher::SketchObject", "Sketch005")
sketch6.AttachmentSupport = (doc.getObject("XZ_Plane"), [""])
sketch6.MapMode = "FlatFace"
sketch6.AttachmentOffset = App.Placement(Vector(0, 0, -30), App.Rotation())
sketch6.addGeometry([
    Part.LineSegment(Vector(-33, 57.5, 0), Vector(-30.7, 62.4, 0)),
    Part.LineSegment(Vector(-30.7, 62.4, 0), Vector(-29.5, 60.5, 0)),
    Part.LineSegment(Vector(-29.5, 60.5, 0), Vector(-33, 57.5, 0)),
    Part.LineSegment(Vector(-50, 42.9, 0), Vector(-54.3, 39.3, 0)),
    Part.LineSegment(Vector(-54.3, 39.3, 0), Vector(-55.7, 41, 0)),
    Part.LineSegment(Vector(-55.7, 41, 0), Vector(-50, 42.9, 0)),
], False)
sketch6.addConstraint([
    Sketcher.Constraint("Coincident", 0, 2, 1, 1),
    Sketcher.Constraint("Coincident", 1, 2, 2, 1),
    Sketcher.Constraint("Coincident", 2, 2, 0, 1),
    Sketcher.Constraint("Coincident", 3, 2, 4, 1),
    Sketcher.Constraint("Coincident", 4, 2, 5, 1),
    Sketcher.Constraint("Coincident", 5, 2, 3, 1),
    Sketcher.Constraint("Parallel", 2, 3),
    Sketcher.Constraint("Perpendicular", 3, 4),
    Sketcher.Constraint("DistanceY", 1, 2, 0, 2, Q("1.864098 mm")),
    Sketcher.Constraint("DistanceX", 2, 2, 1, 2, Q("3.485102 mm")),
    Sketcher.Constraint("DistanceY", 3, 2, 2, 2, Q("18.245201 mm")),
    Sketcher.Constraint("Distance", 0, Q("5.365952 mm")),
    Sketcher.Constraint("Distance", 1, Q("2.20965 mm")),
    Sketcher.Constraint("Distance", 3, Q("5.58823 mm")),
    Sketcher.Constraint("Distance", 5, Q("6.001161 mm")),
    Sketcher.Constraint("DistanceX", 0, 2, -1, 1, Q("30.686231 mm")),
    Sketcher.Constraint("DistanceX", 3, 2, -1, 1, Q("54.289829 mm")),
    Sketcher.Constraint("DistanceY", -1, 1, 4, 2, Q("40.965412 mm")),
])
pocket3 = body.newObject("PartDesign::Pocket", "Pocket002")
pocket3.Profile = sketch6
pocket3.Type = "ThroughAll"
pocket3.Reversed = True

sketch7 = body.newObject("Sketcher::SketchObject", "Sketch006")
sketch7.AttachmentSupport = (doc.getObject("XZ_Plane"), [""])
sketch7.MapMode = "FlatFace"
sketch7.addGeometry([
    Part.LineSegment(Vector(-25, 20, 0), Vector(-25, 5, 0)),
    Part.LineSegment(Vector(-25, 5, 0), Vector(-16, 5, 0)),
    Part.LineSegment(Vector(-16, 5, 0), Vector(-25, 20, 0)),
], False)
sketch7.addConstraint([
    Sketcher.Constraint("Coincident", 0, 2, 1, 1),
    Sketcher.Constraint("Coincident", 1, 2, 2, 1),
    Sketcher.Constraint("Coincident", 2, 2, 0, 1),
    Sketcher.Constraint("Vertical", 0),
    Sketcher.Constraint("DistanceY", 0, 2, 0, 1, Q("15.01942 mm")),
    Sketcher.Constraint("Distance", 2, Q("17.483709 mm")),
    Sketcher.Constraint("DistanceY", -1, 1, 1, 2, Q("4.974368 mm")),
    Sketcher.Constraint("DistanceY", 1, 2, 0, 2, Q("0.061429 mm")),
    Sketcher.Constraint("DistanceX", 0, 2, -1, 1, Q("24.968047 mm")),
])
pad4 = body.newObject("PartDesign::Pad", "Pad003")
pad4.Profile = sketch7
pad4.Length = 30

doc.recompute()
